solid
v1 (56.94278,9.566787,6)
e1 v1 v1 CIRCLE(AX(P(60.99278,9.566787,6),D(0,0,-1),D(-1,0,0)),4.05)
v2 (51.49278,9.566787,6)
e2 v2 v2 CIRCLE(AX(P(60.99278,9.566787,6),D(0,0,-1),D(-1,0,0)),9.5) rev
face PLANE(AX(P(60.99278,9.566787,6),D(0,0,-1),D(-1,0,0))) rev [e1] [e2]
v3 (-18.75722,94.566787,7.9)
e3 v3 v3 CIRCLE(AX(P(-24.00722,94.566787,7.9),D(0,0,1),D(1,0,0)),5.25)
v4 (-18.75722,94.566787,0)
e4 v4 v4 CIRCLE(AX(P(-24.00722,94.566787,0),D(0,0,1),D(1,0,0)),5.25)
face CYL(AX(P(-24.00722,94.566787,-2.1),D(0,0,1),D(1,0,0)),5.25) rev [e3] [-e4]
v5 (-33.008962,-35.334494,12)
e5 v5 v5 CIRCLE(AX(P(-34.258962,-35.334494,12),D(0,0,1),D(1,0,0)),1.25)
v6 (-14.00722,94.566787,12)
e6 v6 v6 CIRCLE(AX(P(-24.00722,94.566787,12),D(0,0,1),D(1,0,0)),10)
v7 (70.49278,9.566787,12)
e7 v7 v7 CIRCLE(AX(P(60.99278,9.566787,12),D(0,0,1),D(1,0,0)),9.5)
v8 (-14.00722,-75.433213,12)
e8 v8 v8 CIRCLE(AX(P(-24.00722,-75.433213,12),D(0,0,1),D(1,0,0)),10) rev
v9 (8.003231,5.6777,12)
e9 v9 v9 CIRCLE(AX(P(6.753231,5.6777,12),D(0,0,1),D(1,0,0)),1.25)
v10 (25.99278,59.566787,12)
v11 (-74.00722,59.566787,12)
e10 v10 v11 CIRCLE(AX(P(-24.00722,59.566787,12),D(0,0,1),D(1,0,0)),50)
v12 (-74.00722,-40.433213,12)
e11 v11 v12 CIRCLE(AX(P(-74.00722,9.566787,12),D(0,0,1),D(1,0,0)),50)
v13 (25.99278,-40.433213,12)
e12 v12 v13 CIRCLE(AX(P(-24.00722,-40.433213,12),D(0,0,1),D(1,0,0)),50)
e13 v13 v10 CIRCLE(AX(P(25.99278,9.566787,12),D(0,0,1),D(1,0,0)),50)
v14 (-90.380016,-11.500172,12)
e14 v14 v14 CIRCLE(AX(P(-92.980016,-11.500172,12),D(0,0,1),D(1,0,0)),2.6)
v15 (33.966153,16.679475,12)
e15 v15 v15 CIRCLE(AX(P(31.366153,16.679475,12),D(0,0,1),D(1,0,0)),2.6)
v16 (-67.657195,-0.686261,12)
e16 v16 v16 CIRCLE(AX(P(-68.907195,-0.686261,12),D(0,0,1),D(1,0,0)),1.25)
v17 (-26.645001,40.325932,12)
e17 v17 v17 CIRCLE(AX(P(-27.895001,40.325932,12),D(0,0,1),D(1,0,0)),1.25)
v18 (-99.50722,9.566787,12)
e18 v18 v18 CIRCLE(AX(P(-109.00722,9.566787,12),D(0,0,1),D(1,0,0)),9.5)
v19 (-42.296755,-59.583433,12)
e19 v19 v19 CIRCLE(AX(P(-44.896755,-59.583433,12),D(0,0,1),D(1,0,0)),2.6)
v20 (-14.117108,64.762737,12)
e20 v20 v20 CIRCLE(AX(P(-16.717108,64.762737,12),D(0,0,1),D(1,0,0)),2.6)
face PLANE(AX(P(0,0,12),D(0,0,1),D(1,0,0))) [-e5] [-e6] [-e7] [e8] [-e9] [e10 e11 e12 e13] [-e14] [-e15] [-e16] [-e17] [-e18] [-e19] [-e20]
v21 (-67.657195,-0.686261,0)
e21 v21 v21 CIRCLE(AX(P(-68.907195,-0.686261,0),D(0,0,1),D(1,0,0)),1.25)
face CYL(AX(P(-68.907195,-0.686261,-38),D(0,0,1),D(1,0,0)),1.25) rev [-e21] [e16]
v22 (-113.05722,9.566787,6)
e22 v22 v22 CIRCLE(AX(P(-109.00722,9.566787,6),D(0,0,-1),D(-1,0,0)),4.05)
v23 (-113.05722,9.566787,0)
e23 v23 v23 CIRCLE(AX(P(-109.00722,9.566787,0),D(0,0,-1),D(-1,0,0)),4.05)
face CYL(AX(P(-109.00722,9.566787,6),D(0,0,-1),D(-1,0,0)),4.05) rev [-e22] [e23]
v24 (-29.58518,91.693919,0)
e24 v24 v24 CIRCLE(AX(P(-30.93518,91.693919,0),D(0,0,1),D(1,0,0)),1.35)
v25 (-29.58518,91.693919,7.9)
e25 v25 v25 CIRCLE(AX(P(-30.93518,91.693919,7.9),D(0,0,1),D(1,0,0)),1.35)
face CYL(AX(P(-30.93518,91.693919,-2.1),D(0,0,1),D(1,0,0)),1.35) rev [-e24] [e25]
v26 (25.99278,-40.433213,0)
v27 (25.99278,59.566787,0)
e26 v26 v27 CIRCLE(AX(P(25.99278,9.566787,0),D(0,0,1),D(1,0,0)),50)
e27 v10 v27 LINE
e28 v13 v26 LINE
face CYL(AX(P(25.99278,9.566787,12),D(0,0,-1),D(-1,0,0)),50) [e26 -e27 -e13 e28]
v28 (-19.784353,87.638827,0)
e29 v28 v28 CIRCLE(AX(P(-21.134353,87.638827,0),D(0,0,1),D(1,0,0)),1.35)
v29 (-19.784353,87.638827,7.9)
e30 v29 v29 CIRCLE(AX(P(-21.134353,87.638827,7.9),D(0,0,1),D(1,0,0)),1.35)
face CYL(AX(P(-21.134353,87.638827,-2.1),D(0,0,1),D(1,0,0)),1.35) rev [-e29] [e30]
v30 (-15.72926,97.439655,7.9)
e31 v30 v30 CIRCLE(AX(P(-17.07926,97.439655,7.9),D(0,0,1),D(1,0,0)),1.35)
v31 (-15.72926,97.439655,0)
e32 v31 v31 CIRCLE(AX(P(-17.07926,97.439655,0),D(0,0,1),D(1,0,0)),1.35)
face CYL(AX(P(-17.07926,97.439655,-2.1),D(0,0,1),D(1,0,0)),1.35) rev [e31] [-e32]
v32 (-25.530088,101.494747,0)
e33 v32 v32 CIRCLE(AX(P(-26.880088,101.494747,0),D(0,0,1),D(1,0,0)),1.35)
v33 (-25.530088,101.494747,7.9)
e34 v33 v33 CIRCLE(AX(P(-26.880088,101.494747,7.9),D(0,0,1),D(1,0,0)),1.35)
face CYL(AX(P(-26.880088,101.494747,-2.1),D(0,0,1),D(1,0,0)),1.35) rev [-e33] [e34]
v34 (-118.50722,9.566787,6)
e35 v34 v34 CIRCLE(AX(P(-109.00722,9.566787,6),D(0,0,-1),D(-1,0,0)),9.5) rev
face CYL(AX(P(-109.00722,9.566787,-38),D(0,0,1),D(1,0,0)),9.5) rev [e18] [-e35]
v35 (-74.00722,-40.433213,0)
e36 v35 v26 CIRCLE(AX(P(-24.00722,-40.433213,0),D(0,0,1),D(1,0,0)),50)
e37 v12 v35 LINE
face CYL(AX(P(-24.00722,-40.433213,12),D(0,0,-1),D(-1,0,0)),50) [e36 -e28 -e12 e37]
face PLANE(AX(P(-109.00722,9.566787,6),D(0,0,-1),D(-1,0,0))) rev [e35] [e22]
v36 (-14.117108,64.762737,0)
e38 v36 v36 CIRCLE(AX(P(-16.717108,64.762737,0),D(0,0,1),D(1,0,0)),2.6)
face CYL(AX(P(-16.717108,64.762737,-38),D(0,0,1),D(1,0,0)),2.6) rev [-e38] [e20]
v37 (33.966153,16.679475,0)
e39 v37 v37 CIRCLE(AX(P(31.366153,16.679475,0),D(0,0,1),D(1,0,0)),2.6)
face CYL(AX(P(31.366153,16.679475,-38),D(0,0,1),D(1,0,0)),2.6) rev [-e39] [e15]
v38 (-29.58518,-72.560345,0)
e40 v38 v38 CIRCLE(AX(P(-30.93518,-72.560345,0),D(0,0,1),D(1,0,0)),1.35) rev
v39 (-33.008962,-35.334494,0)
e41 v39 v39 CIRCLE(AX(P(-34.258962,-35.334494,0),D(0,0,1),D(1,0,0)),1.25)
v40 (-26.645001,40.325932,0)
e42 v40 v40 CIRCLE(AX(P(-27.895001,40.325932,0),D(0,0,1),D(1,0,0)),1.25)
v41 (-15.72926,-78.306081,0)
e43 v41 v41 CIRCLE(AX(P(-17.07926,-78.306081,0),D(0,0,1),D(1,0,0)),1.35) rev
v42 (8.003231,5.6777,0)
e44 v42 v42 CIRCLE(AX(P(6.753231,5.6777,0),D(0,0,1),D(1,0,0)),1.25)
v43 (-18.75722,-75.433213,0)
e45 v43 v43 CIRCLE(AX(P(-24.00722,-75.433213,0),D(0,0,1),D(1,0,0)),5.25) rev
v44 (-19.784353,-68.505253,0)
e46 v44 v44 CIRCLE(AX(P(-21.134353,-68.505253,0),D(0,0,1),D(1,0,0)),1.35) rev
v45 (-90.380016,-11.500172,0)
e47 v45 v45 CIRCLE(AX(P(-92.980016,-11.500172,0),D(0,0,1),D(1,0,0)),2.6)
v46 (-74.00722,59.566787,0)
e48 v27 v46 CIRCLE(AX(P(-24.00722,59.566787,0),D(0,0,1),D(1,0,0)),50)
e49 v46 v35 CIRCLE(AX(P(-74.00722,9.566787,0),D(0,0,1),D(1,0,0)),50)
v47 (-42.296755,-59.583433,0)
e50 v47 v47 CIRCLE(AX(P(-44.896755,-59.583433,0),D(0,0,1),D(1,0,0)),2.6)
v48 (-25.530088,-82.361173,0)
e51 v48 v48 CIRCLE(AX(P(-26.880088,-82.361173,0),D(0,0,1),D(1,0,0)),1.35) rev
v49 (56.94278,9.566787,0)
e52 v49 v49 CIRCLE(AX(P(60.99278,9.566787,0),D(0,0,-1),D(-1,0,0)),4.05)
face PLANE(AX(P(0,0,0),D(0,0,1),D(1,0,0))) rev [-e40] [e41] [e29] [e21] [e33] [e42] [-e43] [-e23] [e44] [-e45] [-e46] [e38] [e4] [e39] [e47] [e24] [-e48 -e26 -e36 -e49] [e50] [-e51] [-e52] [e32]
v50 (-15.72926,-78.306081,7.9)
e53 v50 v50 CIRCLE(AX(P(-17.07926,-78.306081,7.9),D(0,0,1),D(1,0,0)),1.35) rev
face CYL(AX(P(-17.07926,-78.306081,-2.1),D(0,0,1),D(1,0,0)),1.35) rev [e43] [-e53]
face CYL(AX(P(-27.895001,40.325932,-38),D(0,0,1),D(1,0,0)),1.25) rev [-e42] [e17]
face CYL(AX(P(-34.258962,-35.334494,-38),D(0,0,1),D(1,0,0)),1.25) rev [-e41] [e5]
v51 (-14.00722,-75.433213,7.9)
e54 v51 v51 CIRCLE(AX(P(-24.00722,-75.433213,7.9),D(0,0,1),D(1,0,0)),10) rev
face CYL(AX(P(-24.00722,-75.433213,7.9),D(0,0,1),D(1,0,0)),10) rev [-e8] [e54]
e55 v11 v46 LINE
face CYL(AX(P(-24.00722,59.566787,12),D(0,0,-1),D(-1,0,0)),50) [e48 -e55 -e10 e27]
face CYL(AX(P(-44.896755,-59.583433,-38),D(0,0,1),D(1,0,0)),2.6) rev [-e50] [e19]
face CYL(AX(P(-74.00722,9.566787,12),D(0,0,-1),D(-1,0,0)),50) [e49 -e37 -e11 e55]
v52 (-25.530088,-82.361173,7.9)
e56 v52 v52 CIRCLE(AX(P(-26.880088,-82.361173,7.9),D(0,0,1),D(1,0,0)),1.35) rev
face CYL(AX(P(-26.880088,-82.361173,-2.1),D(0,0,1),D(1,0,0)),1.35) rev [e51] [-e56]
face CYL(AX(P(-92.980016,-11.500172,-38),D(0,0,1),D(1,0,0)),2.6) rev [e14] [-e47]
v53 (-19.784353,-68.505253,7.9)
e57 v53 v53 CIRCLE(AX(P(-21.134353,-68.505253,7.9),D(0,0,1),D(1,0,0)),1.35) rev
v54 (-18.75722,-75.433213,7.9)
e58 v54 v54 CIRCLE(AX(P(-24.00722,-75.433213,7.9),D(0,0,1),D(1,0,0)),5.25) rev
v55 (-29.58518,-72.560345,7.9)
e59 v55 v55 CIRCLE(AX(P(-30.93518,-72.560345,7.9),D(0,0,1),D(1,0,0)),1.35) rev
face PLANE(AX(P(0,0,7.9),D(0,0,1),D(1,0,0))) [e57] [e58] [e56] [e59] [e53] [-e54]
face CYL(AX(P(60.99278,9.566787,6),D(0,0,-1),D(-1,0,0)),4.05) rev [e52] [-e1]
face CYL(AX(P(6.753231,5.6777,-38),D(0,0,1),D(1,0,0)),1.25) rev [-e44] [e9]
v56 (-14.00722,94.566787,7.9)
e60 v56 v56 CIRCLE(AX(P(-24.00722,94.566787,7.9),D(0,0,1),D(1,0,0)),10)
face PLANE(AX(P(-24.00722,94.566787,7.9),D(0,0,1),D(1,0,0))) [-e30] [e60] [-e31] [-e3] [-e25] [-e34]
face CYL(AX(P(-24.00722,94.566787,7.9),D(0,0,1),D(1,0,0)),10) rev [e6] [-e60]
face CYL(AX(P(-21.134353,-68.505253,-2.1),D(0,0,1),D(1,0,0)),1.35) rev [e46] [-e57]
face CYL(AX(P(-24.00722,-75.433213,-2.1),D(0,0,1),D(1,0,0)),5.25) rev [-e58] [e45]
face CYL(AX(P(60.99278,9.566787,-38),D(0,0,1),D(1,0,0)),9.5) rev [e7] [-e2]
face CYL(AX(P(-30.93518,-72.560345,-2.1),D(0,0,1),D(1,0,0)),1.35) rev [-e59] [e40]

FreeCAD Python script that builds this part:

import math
import FreeCAD as App
import Part
import Sketcher
from FreeCAD import Vector
Q = App.Units.Quantity

doc = App.newDocument("Part")
body = doc.addObject("PartDesign::Body", "Body")

# Sketch on XY plane
sketch1 = body.newObject("Sketcher::SketchObject", "Sketch")
sketch1.AttachmentSupport = (doc.getObject("XY_Plane"), [""])
sketch1.MapMode = "FlatFace"
sketch1.addGeometry([
    Part.ArcOfCircle(Part.Circle(Vector(-74.00722, 9.566787, 0), Vector(0, 0, 1), 50), math.radians(90), math.radians(270)),  # 0
    Part.ArcOfCircle(Part.Circle(Vector(-24.00722, -40.433213, 0), Vector(0, 0, 1), 50), math.radians(180), math.radians(360)),  # 1
    Part.ArcOfCircle(Part.Circle(Vector(25.99278, 9.566787, 0), Vector(0, 0, 1), 50), math.radians(-90), math.radians(90)),  # 2
    Part.ArcOfCircle(Part.Circle(Vector(-24.00722, 59.566787, 0), Vector(0, 0, 1), 50), math.radians(0), math.radians(180)),  # 3
    Part.Circle(Vector(-109.00722, 9.566787, 0), Vector(0, 0, 1), 4),  # 4
    Part.Circle(Vector(-24.00722, 94.566787, 0), Vector(0, 0, 1), 4),  # 5
    Part.Circle(Vector(-24.00722, -75.433213, 0), Vector(0, 0, 1), 4),  # 6
    Part.Circle(Vector(60.99278, 9.566787, 0), Vector(0, 0, 1), 4),  # 7
], False)
sketch1.addConstraint([
    Sketcher.Constraint("Coincident", 0, 2, 1, 1),
    Sketcher.Constraint("Coincident", 1, 2, 2, 1),
    Sketcher.Constraint("Coincident", 2, 2, 3, 1),
    Sketcher.Constraint("Coincident", 3, 2, 0, 1),
    Sketcher.Constraint("Equal", 0, 1),
    Sketcher.Constraint("Equal", 1, 2),
    Sketcher.Constraint("Equal", 2, 3),
    Sketcher.Constraint("Equal", 4, 5),
    Sketcher.Constraint("Equal", 5, 6),
    Sketcher.Constraint("Equal", 6, 7),
    Sketcher.Constraint("Horizontal", 0, 3, 2, 3),
    Sketcher.Constraint("Horizontal", 2, 3, 4, 3),
    Sketcher.Constraint("Horizontal", 4, 3, 7, 3),
    Sketcher.Constraint("Horizontal", 1, 3, 0, 2),
    Sketcher.Constraint("Horizontal", 3, 3, 2, 2),
    Sketcher.Constraint("Vertical", 1, 3, 3, 3),
    Sketcher.Constraint("Vertical", 3, 3, 5, 3),
    Sketcher.Constraint("Vertical", 5, 3, 6, 3),
    Sketcher.Constraint("Vertical", 2, 3, 1, 2),
    Sketcher.Constraint("Diameter", 4, Q("8 mm")),
    Sketcher.Constraint("Radius", 0, Q("50 mm")),
    Sketcher.Constraint("DistanceX", 0, 3, 1, 3, Q("50 mm")),
    Sketcher.Constraint("DistanceX", 4, 3, 0, 3, Q("35 mm")),
    Sketcher.Constraint("DistanceY", 3, 3, 5, 3, Q("35 mm")),
    Sketcher.Constraint("DistanceY", 6, 3, 1, 3, Q("35 mm")),
    Sketcher.Constraint("DistanceX", 2, 3, 7, 3, Q("35 mm")),
    Sketcher.Constraint("DistanceX", 0, 3, -1, 1, Q("74.00722 mm")),
    Sketcher.Constraint("DistanceY", -1, 1, 0, 3, Q("9.566787 mm")),
])
pad1 = body.newObject("PartDesign::Pad", "Pad")
pad1.Profile = sketch1
pad1.Length = 12

# Sketch on XY plane
sketch2 = body.newObject("Sketcher::SketchObject", "Sketch001")
sketch2.AttachmentSupport = (doc.getObject("XY_Plane"), [""])
sketch2.MapMode = "FlatFace"
sketch2.AttachmentOffset = App.Placement(Vector(0, 0, 12), App.Rotation())
sketch2.addGeometry([
    Part.Circle(Vector(-27.895001, 40.325932, 0), Vector(0, 0, 1), 1.25),
    Part.Circle(Vector(-68.907195, -0.686261, 0), Vector(0, 0, 1), 1.25),
    Part.Circle(Vector(-34.258962, -35.334494, 0), Vector(0, 0, 1), 1.25),
    Part.Circle(Vector(6.753231, 5.6777, 0), Vector(0, 0, 1), 1.25),
], False)
sketch2.addConstraint([
    Sketcher.Constraint("Equal", 0, 1),
    Sketcher.Constraint("Equal", 1, 2),
    Sketcher.Constraint("Equal", 2, 3),
    Sketcher.Constraint("Diameter", 0, Q("2.5 mm")),
    Sketcher.Constraint("DistanceX", 0, 3, -1, 1, Q("27.895001 mm")),
    Sketcher.Constraint("DistanceY", -1, 1, 3, 3, Q("5.6777 mm")),
    Sketcher.Constraint("DistanceY", -1, 1, 0, 3, Q("40.325932 mm")),
    Sketcher.Constraint("DistanceY", 1, 3, -1, 1, Q("0.686261 mm")),
    Sketcher.Constraint("DistanceX", -1, 1, 3, 3, Q("6.753231 mm")),
    Sketcher.Constraint("DistanceX", 2, 3, 0, 3, Q("6.363961 mm")),
    Sketcher.Constraint("DistanceX", 1, 3, -1, 1, Q("68.907195 mm")),
    Sketcher.Constraint("DistanceY", 2, 3, -1, 1, Q("35.334494 mm")),
])
pocket1 = body.newObject("PartDesign::Pocket", "Pocket")
pocket1.Profile = sketch2
pocket1.Length = 50

# Sketch on XY plane
sketch3 = body.newObject("Sketcher::SketchObject", "Sketch002")
sketch3.AttachmentSupport = (doc.getObject("XY_Plane"), [""])
sketch3.MapMode = "FlatFace"
sketch3.AttachmentOffset = App.Placement(Vector(0, 0, 7.9), App.Rotation())
sketch3.addGeometry([
    Part.Circle(Vector(-24.00722, -75.433213, 0), Vector(0, 0, 1), 10),
    Part.Circle(Vector(-24.00722, -75.433213, 0), Vector(0, 0, 1), 4),
    Part.Circle(Vector(-24.00722, 94.566787, 0), Vector(0, 0, 1), 10),
], False)
sketch3.addConstraint([
    Sketcher.Constraint("Coincident", 1, 3, 0, 3),
    Sketcher.Constraint("Equal", 0, 2),
    Sketcher.Constraint("Vertical", 1, 3, 2, 3),
    Sketcher.Constraint("Diameter", 0, Q("20 mm")),
    Sketcher.Constraint("Diameter", 1, Q("8 mm")),
    Sketcher.Constraint("DistanceY", 0, 3, 2, 3, Q("170 mm")),
    Sketcher.Constraint("DistanceX", 0, 3, -1, 1, Q("24.00722 mm")),
    Sketcher.Constraint("DistanceY", 0, 3, -1, 1, Q("75.433213 mm")),
])
pocket2 = body.newObject("PartDesign::Pocket", "Pocket001")
pocket2.Profile = sketch3
pocket2.Length = 4.1
pocket2.Reversed = True

# Sketch on XY plane
sketch4 = body.newObject("Sketcher::SketchObject", "Sketch003")
sketch4.AttachmentSupport = (doc.getObject("XY_Plane"), [""])
sketch4.MapMode = "FlatFace"
sketch4.AttachmentOffset = App.Placement(Vector(0, 0, -2.1), App.Rotation())
sketch4.addGeometry([
    Part.Circle(Vector(-26.880088, -82.361173, 0), Vector(0, 0, 1), 1.35),  # 0
    Part.Circle(Vector(-17.07926, -78.306081, 0), Vector(0, 0, 1), 1.35),  # 1
    Part.Circle(Vector(-30.93518, -72.560345, 0), Vector(0, 0, 1), 1.35),  # 2
    Part.Circle(Vector(-21.134353, -68.505253, 0), Vector(0, 0, 1), 1.35),  # 3
    Part.Circle(Vector(-24.00722, -75.433213, 0), Vector(0, 0, 1), 5.25),  # 4
    Part.Circle(Vector(-21.134353, 87.638827, 0), Vector(0, 0, 1), 1.35),  # 5
    Part.Circle(Vector(-30.93518, 91.693919, 0), Vector(0, 0, 1), 1.35),  # 6
    Part.Circle(Vector(-24.00722, 94.566787, 0), Vector(0, 0, 1), 5.25),  # 7
    Part.Circle(Vector(-26.880088, 101.494747, 0), Vector(0, 0, 1), 1.35),  # 8
    Part.Circle(Vector(-17.07926, 97.439655, 0), Vector(0, 0, 1), 1.35),  # 9
], False)
sketch4.addConstraint([
    Sketcher.Constraint("Equal", 0, 1),
    Sketcher.Constraint("Equal", 1, 2),
    Sketcher.Constraint("Equal", 2, 3),
    Sketcher.Constraint("Equal", 3, 5),
    Sketcher.Constraint("Equal", 5, 6),
    Sketcher.Constraint("Equal", 4, 7),
    Sketcher.Constraint("Equal", 6, 8),
    Sketcher.Constraint("Equal", 8, 9),
    Sketcher.Constraint("Vertical", 3, 3, 5, 3),
    Sketcher.Constraint("Vertical", 2, 3, 6, 3),
    Sketcher.Constraint("Vertical", 4, 3, 7, 3),
    Sketcher.Constraint("Vertical", 0, 3, 8, 3),
    Sketcher.Constraint("Vertical", 1, 3, 9, 3),
    Sketcher.Constraint("Diameter", 0, Q("2.7 mm")),
    Sketcher.Constraint("Diameter", 4, Q("10.5 mm")),
    Sketcher.Constraint("DistanceY", 0, 3, 5, 3, Q("170 mm")),
    Sketcher.Constraint("DistanceY", 1, 3, 6, 3, Q("170 mm")),
    Sketcher.Constraint("DistanceY", 4, 3, 7, 3, Q("170 mm")),
    Sketcher.Constraint("DistanceY", 3, 3, 8, 3, Q("170 mm")),
    Sketcher.Constraint("DistanceX", 1, 3, -1, 1, Q("17.07926 mm")),
    Sketcher.Constraint("DistanceY", 1, 3, -1, 1, Q("78.306081 mm")),
    Sketcher.Constraint("DistanceX", 2, 3, -1, 1, Q("30.93518 mm")),
    Sketcher.Constraint("DistanceX", 4, 3, -1, 1, Q("24.00722 mm")),
    Sketcher.Constraint("DistanceY", 0, 3, 3, 3, Q("13.85592 mm")),
    Sketcher.Constraint("DistanceY", 0, 3, 4, 3, Q("6.92796 mm")),
    Sketcher.Constraint("DistanceX", 0, 3, -1, 1, Q("26.880088 mm")),
    Sketcher.Constraint("DistanceY", 0, 3, -1, 1, Q("82.361173 mm")),
    Sketcher.Constraint("DistanceY", 2, 3, -1, 1, Q("72.560345 mm")),
    Sketcher.Constraint("DistanceX", 3, 3, -1, 1, Q("21.134353 mm")),
    Sketcher.Constraint("DistanceY", -1, 1, 9, 3, Q("97.439655 mm")),
])
pocket3 = body.newObject("PartDesign::Pocket", "Pocket002")
pocket3.Profile = sketch4
pocket3.Length = 10
pocket3.Reversed = True

# Sketch on XY plane
sketch5 = body.newObject("Sketcher::SketchObject", "Sketch004")
sketch5.AttachmentSupport = (doc.getObject("XY_Plane"), [""])
sketch5.MapMode = "FlatFace"
sketch5.AttachmentOffset = App.Placement(Vector(0, 0, 12), App.Rotation())
sketch5.addGeometry([
    Part.Circle(Vector(-109.00722, 9.566787, 0), Vector(0, 0, 1), 9.5),
    Part.Circle(Vector(60.99278, 9.566787, 0), Vector(0, 0, 1), 9.5),
], False)
sketch5.addConstraint([
    Sketcher.Constraint("Equal", 0, 1),
    Sketcher.Constraint("Horizontal", 0, 3, 1, 3),
    Sketcher.Constraint("Diameter", 0, Q("19 mm")),
    Sketcher.Constraint("DistanceX", 0, 3, 1, 3, Q("170 mm")),
    Sketcher.Constraint("DistanceX", 0, 3, -1, 1, Q("109.00722 mm")),
    Sketcher.Constraint("DistanceY", -1, 1, 0, 3, Q("9.566787 mm")),
])
pocket4 = body.newObject("PartDesign::Pocket", "Pocket003")
pocket4.Profile = sketch5
pocket4.Length = 50

# Sketch on XY plane
sketch6 = body.newObject("Sketcher::SketchObject", "Sketch005")
sketch6.AttachmentSupport = (doc.getObject("XY_Plane"), [""])
sketch6.MapMode = "FlatFace"
sketch6.AttachmentOffset = App.Placement(Vector(0, 0, 6), App.Rotation())
sketch6.addGeometry([
    Part.Circle(Vector(-109.00722, 9.566787, 0), Vector(0, 0, 1), 9.5),
    Part.Circle(Vector(-109.00722, 9.566787, 0), Vector(0, 0, 1), 4.05),
    Part.Circle(Vector(60.99278, 9.566787, 0), Vector(0, 0, 1), 9.5),
    Part.Circle(Vector(60.99278, 9.566787, 0), Vector(0, 0, 1), 4.05),
], False)
sketch6.addConstraint([
    Sketcher.Constraint("Coincident", 1, 3, 0, 3),
    Sketcher.Constraint("Coincident", 3, 3, 2, 3),
    Sketcher.Constraint("Equal", 0, 2),
    Sketcher.Constraint("Equal", 1, 3),
    Sketcher.Constraint("Horizontal", 1, 3, 2, 3),
    Sketcher.Constraint("Diameter", 0, Q("19 mm")),
    Sketcher.Constraint("Diameter", 1, Q("8.1 mm")),
    Sketcher.Constraint("DistanceX", 0, 3, 2, 3, Q("170 mm")),
    Sketcher.Constraint("DistanceX", 0, 3, -1, 1, Q("109.00722 mm")),
    Sketcher.Constraint("DistanceY", -1, 1, 0, 3, Q("9.566787 mm")),
])
pad2 = body.newObject("PartDesign::Pad", "Pad001")
pad2.Profile = sketch6
pad2.Length = 6
pad2.Reversed = True

# Sketch on XY plane
sketch7 = body.newObject("Sketcher::SketchObject", "Sketch006")
sketch7.AttachmentSupport = (doc.getObject("XY_Plane"), [""])
sketch7.MapMode = "FlatFace"
sketch7.AttachmentOffset = App.Placement(Vector(0, 0, 12), App.Rotation())
sketch7.addGeometry([
    Part.Circle(Vector(-16.717108, 64.762737, 0), Vector(0, 0, 1), 2.6),
    Part.Circle(Vector(31.366153, 16.679475, 0), Vector(0, 0, 1), 2.6),
    Part.Circle(Vector(-92.980016, -11.500172, 0), Vector(0, 0, 1), 2.6),
    Part.Circle(Vector(-44.896755, -59.583433, 0), Vector(0, 0, 1), 2.6),
], False)
sketch7.addConstraint([
    Sketcher.Constraint("Equal", 0, 1),
    Sketcher.Constraint("Equal", 1, 2),
    Sketcher.Constraint("Equal", 2, 3),
    Sketcher.Constraint("Diameter", 0, Q("5.2 mm")),
    Sketcher.Constraint("DistanceY", 2, 3, -1, 1, Q("11.500172 mm")),
    Sketcher.Constraint("DistanceX", 0, 3, 1, 3, Q("48.083261 mm")),
    Sketcher.Constraint("DistanceY", 1, 3, 0, 3, Q("48.083261 mm")),
    Sketcher.Constraint("DistanceX", 2, 3, 0, 3, Q("76.262908 mm")),
    Sketcher.Constraint("DistanceY", 2, 3, 0, 3, Q("76.262908 mm")),
    Sketcher.Constraint("DistanceX", 2, 3, 3, 3, Q("48.083261 mm")),
    Sketcher.Constraint("DistanceY", 3, 3, 2, 3, Q("48.083261 mm")),
    Sketcher.Constraint("DistanceX", 0, 3, -1, 1, Q("16.717108 mm")),
])
pocket5 = body.newObject("PartDesign::Pocket", "Pocket004")
pocket5.Profile = sketch7
pocket5.Length = 50

doc.recompute()
